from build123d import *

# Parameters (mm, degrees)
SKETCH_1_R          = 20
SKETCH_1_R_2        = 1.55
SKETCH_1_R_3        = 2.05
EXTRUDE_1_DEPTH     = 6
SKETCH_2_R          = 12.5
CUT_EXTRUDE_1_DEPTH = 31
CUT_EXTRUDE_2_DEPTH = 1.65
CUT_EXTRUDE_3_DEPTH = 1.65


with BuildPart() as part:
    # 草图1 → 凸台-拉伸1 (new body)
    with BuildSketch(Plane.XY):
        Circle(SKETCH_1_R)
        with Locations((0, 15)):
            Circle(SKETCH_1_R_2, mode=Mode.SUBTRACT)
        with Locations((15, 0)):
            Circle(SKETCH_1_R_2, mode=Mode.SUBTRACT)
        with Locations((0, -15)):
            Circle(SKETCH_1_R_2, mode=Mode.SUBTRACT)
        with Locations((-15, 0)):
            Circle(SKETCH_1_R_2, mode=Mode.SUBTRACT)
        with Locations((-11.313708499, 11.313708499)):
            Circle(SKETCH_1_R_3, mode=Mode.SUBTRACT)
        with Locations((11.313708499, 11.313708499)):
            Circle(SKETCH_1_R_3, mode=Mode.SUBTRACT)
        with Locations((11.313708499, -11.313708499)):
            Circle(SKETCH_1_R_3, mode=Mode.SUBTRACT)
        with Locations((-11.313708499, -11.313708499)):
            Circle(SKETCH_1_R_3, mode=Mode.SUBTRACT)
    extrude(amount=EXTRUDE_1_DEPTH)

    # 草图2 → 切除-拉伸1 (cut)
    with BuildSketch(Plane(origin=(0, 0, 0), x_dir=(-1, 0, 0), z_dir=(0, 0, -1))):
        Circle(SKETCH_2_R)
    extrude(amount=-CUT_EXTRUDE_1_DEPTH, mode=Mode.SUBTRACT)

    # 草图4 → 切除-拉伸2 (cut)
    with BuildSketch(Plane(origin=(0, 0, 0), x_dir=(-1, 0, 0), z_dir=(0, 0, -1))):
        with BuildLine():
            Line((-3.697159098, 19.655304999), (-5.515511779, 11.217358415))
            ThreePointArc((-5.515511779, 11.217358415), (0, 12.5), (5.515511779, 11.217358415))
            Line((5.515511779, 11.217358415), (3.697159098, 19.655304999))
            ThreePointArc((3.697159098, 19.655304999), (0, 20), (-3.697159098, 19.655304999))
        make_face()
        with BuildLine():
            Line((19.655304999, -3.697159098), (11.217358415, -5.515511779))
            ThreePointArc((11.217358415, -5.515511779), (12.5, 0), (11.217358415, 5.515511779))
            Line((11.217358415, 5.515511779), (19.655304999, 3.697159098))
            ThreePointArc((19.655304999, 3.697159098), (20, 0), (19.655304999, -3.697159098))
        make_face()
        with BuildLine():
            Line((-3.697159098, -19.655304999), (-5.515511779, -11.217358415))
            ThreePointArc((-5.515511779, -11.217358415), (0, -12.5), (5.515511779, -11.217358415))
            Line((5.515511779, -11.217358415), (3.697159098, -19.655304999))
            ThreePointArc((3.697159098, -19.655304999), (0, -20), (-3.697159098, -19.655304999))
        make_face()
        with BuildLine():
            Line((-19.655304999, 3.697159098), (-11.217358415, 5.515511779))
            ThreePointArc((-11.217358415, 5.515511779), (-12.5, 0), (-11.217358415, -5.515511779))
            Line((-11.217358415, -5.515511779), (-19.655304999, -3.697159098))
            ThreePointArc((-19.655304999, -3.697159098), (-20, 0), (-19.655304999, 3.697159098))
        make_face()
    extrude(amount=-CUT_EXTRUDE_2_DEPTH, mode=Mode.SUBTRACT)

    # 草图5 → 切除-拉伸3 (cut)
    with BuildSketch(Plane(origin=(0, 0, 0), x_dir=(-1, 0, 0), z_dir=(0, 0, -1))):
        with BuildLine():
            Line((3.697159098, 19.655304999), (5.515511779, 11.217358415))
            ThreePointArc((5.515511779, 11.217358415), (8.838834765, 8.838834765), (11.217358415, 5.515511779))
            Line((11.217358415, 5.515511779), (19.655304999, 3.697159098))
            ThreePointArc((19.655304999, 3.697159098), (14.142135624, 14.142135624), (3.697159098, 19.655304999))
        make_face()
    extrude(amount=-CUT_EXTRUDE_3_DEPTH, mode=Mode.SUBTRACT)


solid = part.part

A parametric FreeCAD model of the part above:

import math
import FreeCAD as App
import Part
import Sketcher
from FreeCAD import Vector

doc = App.newDocument("Part")
params = doc.addObject("Spreadsheet::Sheet", "Params")
for row, (alias, value) in enumerate([
    ("sketch1_diameter", "40 mm"),
    ("sketch1_diameter2", "4.1 mm"),
    ("sketch1_diameter3", "3.1 mm"),
    ("pad1_length", "6 mm"),
    ("sketch2_diameter", "25 mm"),
    ("pocket1_length", "31 mm"),
    ("sketch3_radius", "20 mm"),
    ("sketch3_radius2", "12.5 mm"),
    ("pocket2_length", "1.65 mm"),
    ("sketch4_radius", "20 mm"),
    ("sketch4_radius2", "12.5 mm"),
    ("pocket3_length", "1.65 mm"),
], start=1):
    params.set(f"A{row}", alias)
    params.set(f"B{row}", "=" + value)
    params.setAlias(f"B{row}", alias)

body = doc.addObject("PartDesign::Body", "Body")

# Sketch on XY plane
sketch1 = body.newObject("Sketcher::SketchObject", "Sketch")
sketch1.AttachmentSupport = (doc.getObject("XY_Plane"), [""])
sketch1.MapMode = "FlatFace"
sketch1.addGeometry([
    Part.Circle(Vector(0, 0, 0), Vector(0, 0, 1), 20),  # 0
    Part.Circle(Vector(-11.3, -11.3, 0), Vector(0, 0, 1), 2),  # 1
    Part.Circle(Vector(0, -15, 0), Vector(0, 0, 1), 1.6),  # 2
    Part.Circle(Vector(11.3, -11.3, 0), Vector(0, 0, 1), 2),  # 3
    Part.Circle(Vector(-15, 0, 0), Vector(0, 0, 1), 1.6),  # 4
    Part.Circle(Vector(-11.3, 11.3, 0), Vector(0, 0, 1), 2),  # 5
    Part.Circle(Vector(0, 15, 0), Vector(0, 0, 1), 1.6),  # 6
    Part.Circle(Vector(15, 0, 0), Vector(0, 0, 1), 1.6),  # 7
    Part.Circle(Vector(11.3, 11.3, 0), Vector(0, 0, 1), 2),  # 8
], False)
sketch1.addConstraint([
    Sketcher.Constraint("Coincident", 0, 3, -1, 1),
    Sketcher.Constraint("Equal", 1, 3),
    Sketcher.Constraint("Equal", 2, 4),
    Sketcher.Constraint("Equal", 3, 5),
    Sketcher.Constraint("Equal", 4, 6),
    Sketcher.Constraint("Equal", 6, 7),
    Sketcher.Constraint("Equal", 5, 8),
    Sketcher.Constraint("Symmetric", 3, 3, 5, 3, -1, 1),
    Sketcher.Constraint("Symmetric", 2, 3, 6, 3, -1, 1),
    Sketcher.Constraint("Symmetric", 4, 3, 7, 3, -1, 1),
    Sketcher.Constraint("Symmetric", 1, 3, 8, 3, -1, 1),
    Sketcher.Constraint("Symmetric", 1, 3, 3, 3, -2),
    Sketcher.Constraint("PointOnObject", 2, 3, -2),
    Sketcher.Constraint("PointOnObject", 4, 3, -1),
    Sketcher.Constraint("Diameter", 0, 40.0),
    Sketcher.Constraint("Diameter", 1, 4.1),
    Sketcher.Constraint("Diameter", 2, 3.1),
    Sketcher.Constraint("DistanceY", 2, 3, -1, 1, 15.0),
    Sketcher.Constraint("DistanceX", 4, 3, -1, 1, 15.0),
    Sketcher.Constraint("DistanceX", 1, 3, -1, 1, 11.313708),
    Sketcher.Constraint("DistanceY", 1, 3, -1, 1, 11.313708),
])
sketch1.setExpression("Constraints[14]", "Params.sketch1_diameter")
sketch1.setExpression("Constraints[15]", "Params.sketch1_diameter2")
sketch1.setExpression("Constraints[16]", "Params.sketch1_diameter3")
pad1 = body.newObject("PartDesign::Pad", "Pad")
pad1.Profile = sketch1
pad1.setExpression("Length", "Params.pad1_length")

# Sketch on XY plane
sketch2 = body.newObject("Sketcher::SketchObject", "Sketch001")
sketch2.AttachmentSupport = (doc.getObject("XY_Plane"), [""])
sketch2.MapMode = "FlatFace"
sketch2.addGeometry(Part.Circle(Vector(0, 0, 0), Vector(0, 0, 1), 12), False)
sketch2.addConstraint([
    Sketcher.Constraint("Coincident", 0, 3, -1, 1),
    Sketcher.Constraint("Diameter", 0, 25.0),
])
sketch2.setExpression("Constraints[1]", "Params.sketch2_diameter")
pocket1 = body.newObject("PartDesign::Pocket", "Pocket")
pocket1.Profile = sketch2
pocket1.setExpression("Length", "Params.pocket1_length")
pocket1.Reversed = True

# Sketch on XY plane
sketch3 = body.newObject("Sketcher::SketchObject", "Sketch002")
sketch3.AttachmentSupport = (doc.getObject("XY_Plane"), [""])
sketch3.MapMode = "FlatFace"
sketch3.addGeometry([
    Part.LineSegment(Vector(4, 20, 0), Vector(6, 11, 0)),  # 0
    Part.ArcOfCircle(Part.Circle(Vector(0, 0, 0), Vector(0, 0, 1), 12), math.radians(64), math.radians(116)),  # 1
    Part.LineSegment(Vector(-6, 11, 0), Vector(-4, 20, 0)),  # 2
    Part.ArcOfCircle(Part.Circle(Vector(0, 0, 0), Vector(0, 0, 1), 20), math.radians(79), math.radians(101)),  # 3
    Part.LineSegment(Vector(-11, -6, 0), Vector(-20, -4, 0)),  # 4
    Part.ArcOfCircle(Part.Circle(Vector(0, 0, 0), Vector(0, 0, 1), 20), math.radians(169), math.radians(191)),  # 5
    Part.LineSegment(Vector(-20, 4, 0), Vector(-11, 6, 0)),  # 6
    Part.ArcOfCircle(Part.Circle(Vector(0, 0, 0), Vector(0, 0, 1), 12), math.radians(154), math.radians(206)),  # 7
    Part.LineSegment(Vector(6, -11, 0), Vector(4, -20, 0)),  # 8
    Part.ArcOfCircle(Part.Circle(Vector(0, 0, 0), Vector(0, 0, 1), 20), math.radians(-101), math.radians(-79)),  # 9
    Part.LineSegment(Vector(-4, -20, 0), Vector(-6, -11, 0)),  # 10
    Part.ArcOfCircle(Part.Circle(Vector(0, 0, 0), Vector(0, 0, 1), 12), math.radians(-116), math.radians(-64)),  # 11
    Part.LineSegment(Vector(11, 6, 0), Vector(20, 4, 0)),  # 12
    Part.ArcOfCircle(Part.Circle(Vector(0, 0, 0), Vector(0, 0, 1), 20), math.radians(-11), math.radians(11)),  # 13
    Part.LineSegment(Vector(20, -4, 0), Vector(11, -6, 0)),  # 14
    Part.ArcOfCircle(Part.Circle(Vector(0, 0, 0), Vector(0, 0, 1), 12), math.radians(-26), math.radians(26)),  # 15
], False)
sketch3.addConstraint([
    Sketcher.Constraint("Coincident", 0, 2, 1, 1),
    Sketcher.Constraint("Coincident", 1, 2, 2, 1),
    Sketcher.Constraint("Coincident", 2, 2, 3, 2),
    Sketcher.Constraint("Coincident", 3, 1, 0, 1),
    Sketcher.Constraint("Coincident", 4, 2, 5, 2),
    Sketcher.Constraint("Coincident", 5, 1, 6, 1),
    Sketcher.Constraint("Coincident", 6, 2, 7, 1),
    Sketcher.Constraint("Coincident", 7, 2, 4, 1),
    Sketcher.Constraint("Coincident", 8, 2, 9, 2),
    Sketcher.Constraint("Coincident", 9, 1, 10, 1),
    Sketcher.Constraint("Coincident", 10, 2, 11, 1),
    Sketcher.Constraint("Coincident", 11, 2, 8, 1),
    Sketcher.Constraint("Coincident", 12, 2, 13, 2),
    Sketcher.Constraint("Coincident", 13, 1, 14, 1),
    Sketcher.Constraint("Coincident", 14, 2, 15, 1),
    Sketcher.Constraint("Coincident", 15, 2, 12, 1),
    Sketcher.Constraint("Coincident", 1, 3, -1, 1),
    Sketcher.Constraint("Coincident", 3, 3, -1, 1),
    Sketcher.Constraint("Coincident", 5, 3, -1, 1),
    Sketcher.Constraint("Coincident", 7, 3, -1, 1),
    Sketcher.Constraint("Coincident", 9, 3, -1, 1),
    Sketcher.Constraint("Coincident", 11, 3, -1, 1),
    Sketcher.Constraint("Coincident", 13, 3, -1, 1),
    Sketcher.Constraint("Coincident", 15, 3, -1, 1),
    Sketcher.Constraint("Equal", 3, 5),
    Sketcher.Constraint("Equal", 1, 7),
    Sketcher.Constraint("Equal", 5, 9),
    Sketcher.Constraint("Equal", 7, 11),
    Sketcher.Constraint("Equal", 9, 13),
    Sketcher.Constraint("Equal", 11, 15),
    Sketcher.Constraint("Perpendicular", 2, 4),
    Sketcher.Constraint("Perpendicular", 0, 6),
    Sketcher.Constraint("Perpendicular", 4, 8),
    Sketcher.Constraint("Perpendicular", 6, 10),
    Sketcher.Constraint("Perpendicular", 8, 12),
    Sketcher.Constraint("Perpendicular", 10, 14),
    Sketcher.Constraint("Horizontal", 0, 2, 1, 2),
    Sketcher.Constraint("Horizontal", 2, 2, 3, 1),
    Sketcher.Constraint("Horizontal", 8, 2, 9, 1),
    Sketcher.Constraint("Horizontal", 5, 1, 12, 2),
    Sketcher.Constraint("Horizontal", 4, 2, 13, 1),
    Sketcher.Constraint("Vertical", 4, 2, 5, 1),
    Sketcher.Constraint("Vertical", 3, 1, 8, 2),
    Sketcher.Constraint("Equal", 2, 4),
    Sketcher.Constraint("Radius", 3, 20.0),
    Sketcher.Constraint("Radius", 1, 12.5),
    Sketcher.Constraint("DistanceY", 5, 1, 1, 2, 7.520199),
    Sketcher.Constraint("Distance", 0, 8.631648),
])
sketch3.setExpression("Constraints[44]", "Params.sketch3_radius")
sketch3.setExpression("Constraints[45]", "Params.sketch3_radius2")
pocket2 = body.newObject("PartDesign::Pocket", "Pocket001")
pocket2.Profile = sketch3
pocket2.setExpression("Length", "Params.pocket2_length")
pocket2.Reversed = True

# Sketch on XY plane
sketch4 = body.newObject("Sketcher::SketchObject", "Sketch003")
sketch4.AttachmentSupport = (doc.getObject("XY_Plane"), [""])
sketch4.MapMode = "FlatFace"
sketch4.addGeometry([
    Part.LineSegment(Vector(-4, 20, 0), Vector(-6, 11, 0)),
    Part.ArcOfCircle(Part.Circle(Vector(0, 0, 0), Vector(0, 0, 1), 12), math.radians(116), math.radians(154)),
    Part.LineSegment(Vector(-11, 6, 0), Vector(-20, 4, 0)),
    Part.ArcOfCircle(Part.Circle(Vector(0, 0, 0), Vector(0, 0, 1), 20), math.radians(101), math.radians(169)),
], False)
sketch4.addConstraint([
    Sketcher.Constraint("Coincident", 0, 2, 1, 1),
    Sketcher.Constraint("Coincident", 1, 2, 2, 1),
    Sketcher.Constraint("Coincident", 2, 2, 3, 2),
    Sketcher.Constraint("Coincident", 3, 1, 0, 1),
    Sketcher.Constraint("Coincident", 1, 3, -1, 1),
    Sketcher.Constraint("Coincident", 3, 3, -1, 1),
    Sketcher.Constraint("Equal", 0, 2),
    Sketcher.Constraint("Radius", 3, 20.0),
    Sketcher.Constraint("Radius", 1, 12.5),
    Sketcher.Constraint("DistanceY", 2, 2, 0, 2, 7.520199),
    Sketcher.Constraint("DistanceX", 1, 2, 3, 1, 7.520199),
    Sketcher.Constraint("Distance", 0, 8.631648),
])
sketch4.setExpression("Constraints[7]", "Params.sketch4_radius")
sketch4.setExpression("Constraints[8]", "Params.sketch4_radius2")
pocket3 = body.newObject("PartDesign::Pocket", "Pocket002")
pocket3.Profile = sketch4
pocket3.setExpression("Length", "Params.pocket3_length")
pocket3.Reversed = True

doc.recompute()
